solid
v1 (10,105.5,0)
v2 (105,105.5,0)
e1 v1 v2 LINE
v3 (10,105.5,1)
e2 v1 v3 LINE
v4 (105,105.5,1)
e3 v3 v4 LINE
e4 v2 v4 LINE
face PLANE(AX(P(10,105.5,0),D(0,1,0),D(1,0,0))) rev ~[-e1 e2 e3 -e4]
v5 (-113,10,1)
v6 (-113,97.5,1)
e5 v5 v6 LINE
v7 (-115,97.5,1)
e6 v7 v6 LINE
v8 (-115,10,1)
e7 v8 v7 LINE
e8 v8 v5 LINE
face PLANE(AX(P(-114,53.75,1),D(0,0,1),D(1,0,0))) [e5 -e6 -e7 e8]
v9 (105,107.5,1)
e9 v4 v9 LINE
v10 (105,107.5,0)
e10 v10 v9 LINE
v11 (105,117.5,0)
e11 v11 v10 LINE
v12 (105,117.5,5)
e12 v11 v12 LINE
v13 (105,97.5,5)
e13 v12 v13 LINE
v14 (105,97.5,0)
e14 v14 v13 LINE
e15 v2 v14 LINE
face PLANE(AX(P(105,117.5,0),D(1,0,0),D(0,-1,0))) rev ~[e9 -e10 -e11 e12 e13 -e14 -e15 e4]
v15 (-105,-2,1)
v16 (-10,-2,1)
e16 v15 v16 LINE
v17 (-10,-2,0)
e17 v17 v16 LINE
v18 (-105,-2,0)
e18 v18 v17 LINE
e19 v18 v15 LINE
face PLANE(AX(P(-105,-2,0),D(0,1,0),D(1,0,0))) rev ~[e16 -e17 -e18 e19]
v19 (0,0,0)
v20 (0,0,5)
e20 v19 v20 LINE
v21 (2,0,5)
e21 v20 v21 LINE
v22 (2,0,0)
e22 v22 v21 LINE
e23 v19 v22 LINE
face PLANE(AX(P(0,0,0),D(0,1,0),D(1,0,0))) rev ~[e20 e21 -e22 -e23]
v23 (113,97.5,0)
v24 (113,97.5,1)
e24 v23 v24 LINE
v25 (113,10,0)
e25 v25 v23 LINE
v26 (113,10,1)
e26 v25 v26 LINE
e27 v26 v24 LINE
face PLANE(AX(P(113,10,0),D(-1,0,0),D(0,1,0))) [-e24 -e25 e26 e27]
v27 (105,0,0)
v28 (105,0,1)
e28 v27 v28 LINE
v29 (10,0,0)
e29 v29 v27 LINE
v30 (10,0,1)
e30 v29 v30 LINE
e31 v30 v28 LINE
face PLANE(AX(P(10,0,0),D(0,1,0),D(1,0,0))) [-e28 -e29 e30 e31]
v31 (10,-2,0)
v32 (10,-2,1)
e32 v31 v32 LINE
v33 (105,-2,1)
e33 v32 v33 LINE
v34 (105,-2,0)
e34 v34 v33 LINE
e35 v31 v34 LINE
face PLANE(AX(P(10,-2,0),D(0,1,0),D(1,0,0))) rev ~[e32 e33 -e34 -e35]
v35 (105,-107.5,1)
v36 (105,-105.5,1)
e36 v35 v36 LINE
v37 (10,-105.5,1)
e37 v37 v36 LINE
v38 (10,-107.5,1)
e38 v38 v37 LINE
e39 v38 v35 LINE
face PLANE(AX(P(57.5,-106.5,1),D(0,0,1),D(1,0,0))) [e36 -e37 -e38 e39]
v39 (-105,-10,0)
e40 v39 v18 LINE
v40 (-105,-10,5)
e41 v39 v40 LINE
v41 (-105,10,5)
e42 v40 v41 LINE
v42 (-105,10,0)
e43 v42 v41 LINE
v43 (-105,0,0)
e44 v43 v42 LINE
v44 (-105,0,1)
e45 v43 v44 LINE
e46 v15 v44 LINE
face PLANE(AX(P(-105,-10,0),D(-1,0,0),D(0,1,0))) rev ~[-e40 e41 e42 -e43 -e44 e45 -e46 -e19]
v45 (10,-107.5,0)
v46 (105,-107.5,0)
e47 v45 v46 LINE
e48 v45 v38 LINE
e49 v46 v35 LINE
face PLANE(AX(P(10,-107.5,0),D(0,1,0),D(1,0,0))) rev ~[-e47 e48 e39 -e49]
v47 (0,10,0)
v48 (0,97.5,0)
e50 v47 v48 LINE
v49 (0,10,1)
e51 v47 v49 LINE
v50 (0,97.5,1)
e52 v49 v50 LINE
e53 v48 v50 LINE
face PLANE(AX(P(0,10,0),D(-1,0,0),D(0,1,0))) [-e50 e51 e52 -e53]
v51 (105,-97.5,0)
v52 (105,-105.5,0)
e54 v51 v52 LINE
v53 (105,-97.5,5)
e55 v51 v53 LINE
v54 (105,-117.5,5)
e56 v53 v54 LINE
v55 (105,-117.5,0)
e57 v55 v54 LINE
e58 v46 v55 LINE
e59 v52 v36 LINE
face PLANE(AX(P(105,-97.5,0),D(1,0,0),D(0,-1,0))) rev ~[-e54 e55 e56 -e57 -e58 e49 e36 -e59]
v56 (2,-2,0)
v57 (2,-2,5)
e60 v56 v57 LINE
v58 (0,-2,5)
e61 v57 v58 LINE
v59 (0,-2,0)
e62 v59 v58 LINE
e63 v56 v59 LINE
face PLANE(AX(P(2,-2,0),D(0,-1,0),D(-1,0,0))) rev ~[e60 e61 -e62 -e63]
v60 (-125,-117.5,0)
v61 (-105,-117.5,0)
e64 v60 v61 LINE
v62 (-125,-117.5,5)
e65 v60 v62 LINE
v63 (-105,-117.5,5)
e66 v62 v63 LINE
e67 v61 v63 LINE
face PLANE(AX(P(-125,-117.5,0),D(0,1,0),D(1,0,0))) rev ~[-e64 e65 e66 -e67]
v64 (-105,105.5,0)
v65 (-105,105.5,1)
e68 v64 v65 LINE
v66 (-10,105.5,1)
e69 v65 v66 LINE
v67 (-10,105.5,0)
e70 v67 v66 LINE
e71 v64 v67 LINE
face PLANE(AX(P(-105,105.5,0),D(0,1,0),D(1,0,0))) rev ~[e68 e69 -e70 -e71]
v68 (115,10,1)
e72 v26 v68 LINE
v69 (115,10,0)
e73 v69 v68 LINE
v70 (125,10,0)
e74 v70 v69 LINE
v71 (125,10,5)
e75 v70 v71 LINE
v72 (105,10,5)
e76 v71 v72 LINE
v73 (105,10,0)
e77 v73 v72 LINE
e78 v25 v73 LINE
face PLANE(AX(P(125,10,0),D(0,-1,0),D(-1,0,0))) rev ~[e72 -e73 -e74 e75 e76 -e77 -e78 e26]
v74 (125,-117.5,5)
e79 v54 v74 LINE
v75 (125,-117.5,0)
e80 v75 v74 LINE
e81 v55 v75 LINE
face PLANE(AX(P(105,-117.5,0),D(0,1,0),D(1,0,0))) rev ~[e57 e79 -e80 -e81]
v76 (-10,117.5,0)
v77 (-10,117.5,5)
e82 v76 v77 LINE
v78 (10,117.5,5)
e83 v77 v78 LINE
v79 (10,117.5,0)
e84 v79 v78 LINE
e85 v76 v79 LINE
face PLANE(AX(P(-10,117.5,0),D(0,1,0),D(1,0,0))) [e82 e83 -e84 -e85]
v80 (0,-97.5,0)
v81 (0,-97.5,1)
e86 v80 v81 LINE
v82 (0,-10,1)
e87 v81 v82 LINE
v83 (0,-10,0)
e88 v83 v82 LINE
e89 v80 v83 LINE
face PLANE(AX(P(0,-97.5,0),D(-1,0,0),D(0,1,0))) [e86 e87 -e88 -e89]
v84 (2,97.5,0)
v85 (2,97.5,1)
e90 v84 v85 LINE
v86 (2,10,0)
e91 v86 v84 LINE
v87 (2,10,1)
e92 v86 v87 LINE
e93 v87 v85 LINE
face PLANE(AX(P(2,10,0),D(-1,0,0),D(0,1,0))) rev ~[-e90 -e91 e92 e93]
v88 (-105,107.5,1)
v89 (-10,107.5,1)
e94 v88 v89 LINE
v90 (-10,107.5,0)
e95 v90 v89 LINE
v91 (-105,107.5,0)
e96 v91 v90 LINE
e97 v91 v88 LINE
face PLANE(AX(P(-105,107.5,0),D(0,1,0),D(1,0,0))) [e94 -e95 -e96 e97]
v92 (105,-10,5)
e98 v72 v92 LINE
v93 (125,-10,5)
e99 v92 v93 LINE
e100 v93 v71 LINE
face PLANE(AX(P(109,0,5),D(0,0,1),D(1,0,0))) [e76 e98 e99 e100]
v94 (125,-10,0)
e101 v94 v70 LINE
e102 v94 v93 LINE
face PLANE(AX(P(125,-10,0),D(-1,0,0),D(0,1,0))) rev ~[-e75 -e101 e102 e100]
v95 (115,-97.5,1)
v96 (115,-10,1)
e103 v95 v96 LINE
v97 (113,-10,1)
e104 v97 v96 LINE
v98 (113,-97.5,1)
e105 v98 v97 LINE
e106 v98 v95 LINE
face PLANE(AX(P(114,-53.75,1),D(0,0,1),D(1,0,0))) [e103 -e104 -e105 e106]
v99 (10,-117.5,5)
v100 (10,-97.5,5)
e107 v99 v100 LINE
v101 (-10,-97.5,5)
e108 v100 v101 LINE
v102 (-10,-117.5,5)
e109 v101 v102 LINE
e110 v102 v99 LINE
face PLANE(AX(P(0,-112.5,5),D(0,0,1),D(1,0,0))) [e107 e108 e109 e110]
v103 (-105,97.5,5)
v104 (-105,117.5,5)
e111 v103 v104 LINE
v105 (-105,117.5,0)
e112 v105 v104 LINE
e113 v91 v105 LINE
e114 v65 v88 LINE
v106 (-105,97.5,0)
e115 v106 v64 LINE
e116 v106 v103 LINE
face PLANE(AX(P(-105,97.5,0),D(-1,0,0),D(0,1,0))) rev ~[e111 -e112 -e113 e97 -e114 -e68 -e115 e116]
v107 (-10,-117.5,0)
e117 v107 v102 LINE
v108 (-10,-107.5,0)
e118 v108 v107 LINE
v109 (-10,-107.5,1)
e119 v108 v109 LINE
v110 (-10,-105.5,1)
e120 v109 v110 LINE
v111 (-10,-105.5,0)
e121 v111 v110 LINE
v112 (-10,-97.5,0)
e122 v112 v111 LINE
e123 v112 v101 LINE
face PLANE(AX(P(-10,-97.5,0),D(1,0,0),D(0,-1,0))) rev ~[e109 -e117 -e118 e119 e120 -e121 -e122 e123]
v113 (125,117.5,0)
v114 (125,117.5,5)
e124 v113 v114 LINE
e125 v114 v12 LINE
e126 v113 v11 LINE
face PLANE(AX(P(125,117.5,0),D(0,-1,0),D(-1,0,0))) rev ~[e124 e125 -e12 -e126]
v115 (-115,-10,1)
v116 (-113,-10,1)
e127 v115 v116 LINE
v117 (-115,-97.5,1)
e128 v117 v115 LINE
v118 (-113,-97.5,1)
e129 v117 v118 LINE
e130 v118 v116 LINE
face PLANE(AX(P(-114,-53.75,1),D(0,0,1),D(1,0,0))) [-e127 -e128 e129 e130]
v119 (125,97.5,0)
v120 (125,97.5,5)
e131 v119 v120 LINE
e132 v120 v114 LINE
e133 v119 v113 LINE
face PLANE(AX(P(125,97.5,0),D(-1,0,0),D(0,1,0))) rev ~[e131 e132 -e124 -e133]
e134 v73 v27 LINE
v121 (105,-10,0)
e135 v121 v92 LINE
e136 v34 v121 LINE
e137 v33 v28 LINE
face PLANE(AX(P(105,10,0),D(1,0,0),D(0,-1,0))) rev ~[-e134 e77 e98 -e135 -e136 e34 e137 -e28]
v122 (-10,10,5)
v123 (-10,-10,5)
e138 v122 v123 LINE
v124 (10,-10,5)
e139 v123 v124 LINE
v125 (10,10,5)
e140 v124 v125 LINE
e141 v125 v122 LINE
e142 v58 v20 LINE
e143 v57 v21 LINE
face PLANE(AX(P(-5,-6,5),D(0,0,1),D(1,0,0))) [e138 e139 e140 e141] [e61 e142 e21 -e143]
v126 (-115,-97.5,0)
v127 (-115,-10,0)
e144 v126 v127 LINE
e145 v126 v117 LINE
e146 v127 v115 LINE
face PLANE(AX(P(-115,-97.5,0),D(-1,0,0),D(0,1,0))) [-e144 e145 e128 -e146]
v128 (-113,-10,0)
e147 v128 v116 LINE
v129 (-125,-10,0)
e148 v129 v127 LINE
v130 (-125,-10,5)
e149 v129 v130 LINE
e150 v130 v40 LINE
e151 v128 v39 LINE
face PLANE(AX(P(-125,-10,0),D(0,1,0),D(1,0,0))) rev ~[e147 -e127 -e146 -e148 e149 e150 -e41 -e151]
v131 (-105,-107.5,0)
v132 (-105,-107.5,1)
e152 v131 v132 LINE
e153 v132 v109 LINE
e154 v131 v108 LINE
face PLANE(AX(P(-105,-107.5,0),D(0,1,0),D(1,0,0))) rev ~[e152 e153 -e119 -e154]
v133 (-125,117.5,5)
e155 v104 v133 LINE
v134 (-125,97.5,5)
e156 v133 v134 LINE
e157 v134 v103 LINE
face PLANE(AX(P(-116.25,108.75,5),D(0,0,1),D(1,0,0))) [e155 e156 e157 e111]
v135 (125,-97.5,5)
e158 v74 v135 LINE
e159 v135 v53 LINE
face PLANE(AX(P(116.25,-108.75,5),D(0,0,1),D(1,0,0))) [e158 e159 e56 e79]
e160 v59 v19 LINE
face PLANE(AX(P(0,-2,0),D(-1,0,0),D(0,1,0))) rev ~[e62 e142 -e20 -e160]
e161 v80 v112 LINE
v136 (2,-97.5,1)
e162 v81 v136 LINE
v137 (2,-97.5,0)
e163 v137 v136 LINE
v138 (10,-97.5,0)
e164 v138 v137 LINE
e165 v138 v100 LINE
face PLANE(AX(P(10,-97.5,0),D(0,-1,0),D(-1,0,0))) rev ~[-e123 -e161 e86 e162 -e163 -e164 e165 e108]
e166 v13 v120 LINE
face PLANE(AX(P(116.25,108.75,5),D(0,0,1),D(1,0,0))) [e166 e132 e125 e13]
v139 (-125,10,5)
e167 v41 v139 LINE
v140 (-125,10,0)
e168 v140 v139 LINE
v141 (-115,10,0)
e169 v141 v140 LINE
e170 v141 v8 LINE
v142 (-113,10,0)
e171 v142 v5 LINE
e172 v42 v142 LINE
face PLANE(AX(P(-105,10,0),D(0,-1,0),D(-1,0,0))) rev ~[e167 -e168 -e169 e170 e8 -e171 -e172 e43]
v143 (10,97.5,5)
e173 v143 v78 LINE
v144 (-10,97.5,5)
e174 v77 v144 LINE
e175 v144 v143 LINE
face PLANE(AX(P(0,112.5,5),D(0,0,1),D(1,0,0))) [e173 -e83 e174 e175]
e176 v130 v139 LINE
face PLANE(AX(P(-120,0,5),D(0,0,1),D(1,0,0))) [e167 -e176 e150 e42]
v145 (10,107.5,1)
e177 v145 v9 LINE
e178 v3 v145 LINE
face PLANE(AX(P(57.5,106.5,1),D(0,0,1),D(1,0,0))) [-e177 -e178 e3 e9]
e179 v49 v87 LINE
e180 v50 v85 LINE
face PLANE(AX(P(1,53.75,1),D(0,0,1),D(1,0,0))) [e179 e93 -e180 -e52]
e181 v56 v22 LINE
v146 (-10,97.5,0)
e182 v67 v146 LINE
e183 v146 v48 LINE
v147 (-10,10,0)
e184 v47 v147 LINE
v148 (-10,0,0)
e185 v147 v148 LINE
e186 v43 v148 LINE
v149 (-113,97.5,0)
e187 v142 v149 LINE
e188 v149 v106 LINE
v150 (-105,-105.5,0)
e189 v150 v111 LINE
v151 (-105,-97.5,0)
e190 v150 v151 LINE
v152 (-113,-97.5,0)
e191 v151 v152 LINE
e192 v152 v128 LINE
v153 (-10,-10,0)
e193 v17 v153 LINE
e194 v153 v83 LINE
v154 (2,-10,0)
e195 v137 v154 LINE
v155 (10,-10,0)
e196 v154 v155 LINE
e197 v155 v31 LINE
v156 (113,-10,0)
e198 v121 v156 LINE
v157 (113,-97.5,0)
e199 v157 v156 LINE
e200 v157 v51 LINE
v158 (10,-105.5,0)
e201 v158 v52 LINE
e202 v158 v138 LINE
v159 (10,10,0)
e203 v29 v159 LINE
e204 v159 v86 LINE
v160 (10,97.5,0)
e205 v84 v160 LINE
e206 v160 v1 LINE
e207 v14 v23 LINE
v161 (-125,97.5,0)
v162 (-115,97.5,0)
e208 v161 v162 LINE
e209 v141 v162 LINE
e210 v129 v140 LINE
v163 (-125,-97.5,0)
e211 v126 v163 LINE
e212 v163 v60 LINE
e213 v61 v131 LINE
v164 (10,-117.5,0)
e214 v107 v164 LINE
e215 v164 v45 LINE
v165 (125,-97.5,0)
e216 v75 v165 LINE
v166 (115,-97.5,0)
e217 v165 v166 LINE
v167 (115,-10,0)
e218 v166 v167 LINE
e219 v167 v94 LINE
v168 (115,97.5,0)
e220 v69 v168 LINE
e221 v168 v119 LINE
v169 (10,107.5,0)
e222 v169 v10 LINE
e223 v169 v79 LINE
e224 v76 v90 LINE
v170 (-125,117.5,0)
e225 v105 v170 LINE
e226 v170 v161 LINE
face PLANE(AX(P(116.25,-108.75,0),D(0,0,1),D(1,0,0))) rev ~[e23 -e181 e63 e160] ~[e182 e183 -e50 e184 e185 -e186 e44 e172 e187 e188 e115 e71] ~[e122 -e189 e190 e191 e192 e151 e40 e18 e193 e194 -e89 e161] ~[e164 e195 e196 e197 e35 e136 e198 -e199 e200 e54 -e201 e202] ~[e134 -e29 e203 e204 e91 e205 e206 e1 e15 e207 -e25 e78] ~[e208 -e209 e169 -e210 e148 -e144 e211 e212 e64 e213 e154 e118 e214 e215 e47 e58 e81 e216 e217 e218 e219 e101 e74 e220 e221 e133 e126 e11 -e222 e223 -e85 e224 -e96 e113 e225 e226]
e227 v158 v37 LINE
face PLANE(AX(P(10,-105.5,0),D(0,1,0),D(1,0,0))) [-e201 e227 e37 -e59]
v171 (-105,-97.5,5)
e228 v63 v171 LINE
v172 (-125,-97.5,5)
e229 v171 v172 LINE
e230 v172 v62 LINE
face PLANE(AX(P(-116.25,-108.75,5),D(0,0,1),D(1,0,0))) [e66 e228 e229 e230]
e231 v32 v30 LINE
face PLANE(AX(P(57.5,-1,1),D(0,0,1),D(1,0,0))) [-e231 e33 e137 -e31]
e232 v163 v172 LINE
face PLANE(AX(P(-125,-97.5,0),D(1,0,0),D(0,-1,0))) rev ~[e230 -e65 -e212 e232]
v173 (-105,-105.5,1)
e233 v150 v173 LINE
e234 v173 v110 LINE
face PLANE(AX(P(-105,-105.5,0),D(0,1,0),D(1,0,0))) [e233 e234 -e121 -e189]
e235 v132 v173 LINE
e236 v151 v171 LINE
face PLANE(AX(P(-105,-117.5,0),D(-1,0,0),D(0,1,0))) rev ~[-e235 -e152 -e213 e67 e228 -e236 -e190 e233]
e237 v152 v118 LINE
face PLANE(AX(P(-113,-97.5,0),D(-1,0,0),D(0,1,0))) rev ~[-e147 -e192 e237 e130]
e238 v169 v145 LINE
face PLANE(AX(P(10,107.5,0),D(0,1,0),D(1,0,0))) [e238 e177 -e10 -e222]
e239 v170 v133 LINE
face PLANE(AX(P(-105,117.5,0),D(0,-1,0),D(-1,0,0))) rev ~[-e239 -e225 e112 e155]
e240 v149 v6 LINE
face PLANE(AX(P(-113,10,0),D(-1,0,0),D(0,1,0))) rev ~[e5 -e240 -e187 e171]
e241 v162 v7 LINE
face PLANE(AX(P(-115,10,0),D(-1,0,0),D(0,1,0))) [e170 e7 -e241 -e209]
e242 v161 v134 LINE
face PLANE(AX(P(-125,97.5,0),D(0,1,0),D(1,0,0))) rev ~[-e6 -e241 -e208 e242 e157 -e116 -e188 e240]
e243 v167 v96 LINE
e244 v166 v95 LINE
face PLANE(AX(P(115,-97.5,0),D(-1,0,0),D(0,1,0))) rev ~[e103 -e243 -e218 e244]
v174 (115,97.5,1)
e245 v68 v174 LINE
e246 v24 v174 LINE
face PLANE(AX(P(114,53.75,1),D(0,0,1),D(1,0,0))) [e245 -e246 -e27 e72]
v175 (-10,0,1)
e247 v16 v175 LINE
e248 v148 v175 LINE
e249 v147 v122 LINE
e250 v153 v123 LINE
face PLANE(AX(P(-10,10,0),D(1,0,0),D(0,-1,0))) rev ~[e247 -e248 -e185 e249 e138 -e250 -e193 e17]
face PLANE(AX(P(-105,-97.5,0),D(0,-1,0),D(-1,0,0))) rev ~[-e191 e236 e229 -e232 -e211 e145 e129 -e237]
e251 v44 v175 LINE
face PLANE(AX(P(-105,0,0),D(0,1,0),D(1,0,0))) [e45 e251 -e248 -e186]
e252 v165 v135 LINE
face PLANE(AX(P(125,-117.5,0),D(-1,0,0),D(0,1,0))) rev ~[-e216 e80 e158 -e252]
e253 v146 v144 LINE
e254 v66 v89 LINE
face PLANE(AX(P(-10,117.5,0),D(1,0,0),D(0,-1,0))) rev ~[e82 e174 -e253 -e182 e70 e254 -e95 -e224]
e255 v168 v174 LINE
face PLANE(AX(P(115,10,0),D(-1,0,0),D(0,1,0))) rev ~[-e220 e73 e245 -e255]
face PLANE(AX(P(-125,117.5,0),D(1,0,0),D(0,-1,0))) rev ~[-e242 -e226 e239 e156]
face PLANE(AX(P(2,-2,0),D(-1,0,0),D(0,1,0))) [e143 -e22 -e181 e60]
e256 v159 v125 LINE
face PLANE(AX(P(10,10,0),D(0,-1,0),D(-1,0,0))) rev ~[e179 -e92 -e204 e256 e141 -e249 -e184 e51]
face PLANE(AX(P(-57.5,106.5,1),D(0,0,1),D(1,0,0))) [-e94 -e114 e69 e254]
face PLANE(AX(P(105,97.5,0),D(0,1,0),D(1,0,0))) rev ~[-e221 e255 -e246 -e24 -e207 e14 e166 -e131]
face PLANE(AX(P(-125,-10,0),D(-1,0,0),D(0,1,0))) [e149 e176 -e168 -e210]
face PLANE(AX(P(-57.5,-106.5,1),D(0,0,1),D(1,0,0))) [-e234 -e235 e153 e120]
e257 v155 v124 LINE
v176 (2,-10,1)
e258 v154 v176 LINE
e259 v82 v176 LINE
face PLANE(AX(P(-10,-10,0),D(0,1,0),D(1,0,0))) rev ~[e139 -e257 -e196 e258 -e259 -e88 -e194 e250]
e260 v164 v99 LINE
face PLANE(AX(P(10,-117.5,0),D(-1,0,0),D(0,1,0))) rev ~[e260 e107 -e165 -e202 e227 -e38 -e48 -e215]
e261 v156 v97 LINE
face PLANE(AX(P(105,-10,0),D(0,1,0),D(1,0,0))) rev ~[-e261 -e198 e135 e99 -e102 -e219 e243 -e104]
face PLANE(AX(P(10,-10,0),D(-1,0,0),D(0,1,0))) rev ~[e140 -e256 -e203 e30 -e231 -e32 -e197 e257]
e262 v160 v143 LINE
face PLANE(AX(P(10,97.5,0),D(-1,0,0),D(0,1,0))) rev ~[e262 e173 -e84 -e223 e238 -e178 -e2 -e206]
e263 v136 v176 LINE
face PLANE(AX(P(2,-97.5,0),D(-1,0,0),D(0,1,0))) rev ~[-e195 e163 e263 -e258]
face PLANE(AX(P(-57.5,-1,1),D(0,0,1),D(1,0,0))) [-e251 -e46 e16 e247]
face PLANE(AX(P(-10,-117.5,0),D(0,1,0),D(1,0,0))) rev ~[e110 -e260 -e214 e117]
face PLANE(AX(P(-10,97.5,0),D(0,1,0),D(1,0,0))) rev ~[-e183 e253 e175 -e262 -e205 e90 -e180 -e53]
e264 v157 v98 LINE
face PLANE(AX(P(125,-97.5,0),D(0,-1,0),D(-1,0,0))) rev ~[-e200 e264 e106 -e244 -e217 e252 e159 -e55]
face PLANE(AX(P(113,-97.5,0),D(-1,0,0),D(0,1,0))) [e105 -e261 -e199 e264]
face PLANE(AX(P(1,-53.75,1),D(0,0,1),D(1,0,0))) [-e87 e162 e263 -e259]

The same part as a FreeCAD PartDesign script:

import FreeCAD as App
import Part
import Sketcher
from FreeCAD import Vector
Q = App.Units.Quantity

doc = App.newDocument("Part")
body = doc.addObject("PartDesign::Body", "Body")

# Sketch on XY plane
sketch1 = body.newObject("Sketcher::SketchObject", "Sketch")
sketch1.AttachmentSupport = (doc.getObject("XY_Plane"), [""])
sketch1.MapMode = "FlatFace"
sketch1.addGeometry(Part.LineSegment(Vector(-105, 118, 0), Vector(-125, 118, 0)), False)
sketch1.addGeometry(Part.LineSegment(Vector(-125, 118, 0), Vector(-125, 98, 0)), False)
sketch1.addGeometry(Part.LineSegment(Vector(-125, 98, 0), Vector(-105, 98, 0)), False)
sketch1.addGeometry(Part.LineSegment(Vector(-105, 98, 0), Vector(-105, 118, 0)), False)
sketch1.addConstraint(Sketcher.Constraint("Coincident", 0, 2, 1, 1))
sketch1.addConstraint(Sketcher.Constraint("Coincident", 1, 2, 2, 1))
sketch1.addConstraint(Sketcher.Constraint("Coincident", 2, 2, 3, 1))
sketch1.addConstraint(Sketcher.Constraint("Coincident", 3, 2, 0, 1))
sketch1.addConstraint(Sketcher.Constraint("Horizontal", 0))
sketch1.addConstraint(Sketcher.Constraint("Vertical", 1))
sketch1.addConstraint(Sketcher.Constraint("Horizontal", 2))
sketch1.addConstraint(Sketcher.Constraint("Vertical", 3))
sketch1.addConstraint(Sketcher.Constraint("Equal", 2, 1))
sketch1.addConstraint(Sketcher.Constraint("DistanceX", 0, 2, 0, 1, Q("20 mm")))
sketch1.addConstraint(Sketcher.Constraint("DistanceX", 0, 2, -1, 1, Q("125 mm")))
sketch1.addConstraint(Sketcher.Constraint("DistanceY", -1, 1, 0, 2, Q("117.5 mm")))
pad1 = body.newObject("PartDesign::Pad", "Pad")
pad1.Profile = sketch1
pad1.Length = 5
body2 = doc.addObject("PartDesign::Body", "Body001")

# Sketch on XY plane
sketch2 = body2.newObject("Sketcher::SketchObject", "Sketch001")
sketch2.AttachmentSupport = (doc.getObject("XY_Plane001"), [""])
sketch2.MapMode = "FlatFace"
sketch2.addGeometry(Part.LineSegment(Vector(-10, 118, 0), Vector(-10, 98, 0)), False)
sketch2.addGeometry(Part.LineSegment(Vector(-10, 98, 0), Vector(10, 98, 0)), False)
sketch2.addGeometry(Part.LineSegment(Vector(10, 98, 0), Vector(10, 118, 0)), False)
sketch2.addGeometry(Part.LineSegment(Vector(10, 118, 0), Vector(-10, 118, 0)), False)
sketch2.addConstraint(Sketcher.Constraint("Coincident", 0, 2, 1, 1))
sketch2.addConstraint(Sketcher.Constraint("Coincident", 1, 2, 2, 1))
sketch2.addConstraint(Sketcher.Constraint("Coincident", 2, 2, 3, 1))
sketch2.addConstraint(Sketcher.Constraint("Coincident", 3, 2, 0, 1))
sketch2.addConstraint(Sketcher.Constraint("Vertical", 0))
sketch2.addConstraint(Sketcher.Constraint("Horizontal", 1))
sketch2.addConstraint(Sketcher.Constraint("Vertical", 2))
sketch2.addConstraint(Sketcher.Constraint("Horizontal", 3))
sketch2.addConstraint(Sketcher.Constraint("Equal", 3, 0))
sketch2.addConstraint(Sketcher.Constraint("DistanceX", 1, 1, 1, 2, Q("20 mm")))
sketch2.addConstraint(Sketcher.Constraint("DistanceX", 0, 2, -1, 1, Q("10 mm")))
sketch2.addConstraint(Sketcher.Constraint("DistanceY", -1, 1, 0, 2, Q("97.5 mm")))
pad2 = body2.newObject("PartDesign::Pad", "Pad001")
pad2.Profile = sketch2
pad2.Length = 5
body3 = doc.addObject("PartDesign::Body", "Body002")

# Sketch on XY plane
sketch3 = body3.newObject("Sketcher::SketchObject", "Sketch002")
sketch3.AttachmentSupport = (doc.getObject("XY_Plane002"), [""])
sketch3.MapMode = "FlatFace"
sketch3.addGeometry(Part.LineSegment(Vector(105, 118, 0), Vector(105, 98, 0)), False)
sketch3.addGeometry(Part.LineSegment(Vector(105, 98, 0), Vector(125, 98, 0)), False)
sketch3.addGeometry(Part.LineSegment(Vector(125, 98, 0), Vector(125, 118, 0)), False)
sketch3.addGeometry(Part.LineSegment(Vector(125, 118, 0), Vector(105, 118, 0)), False)
sketch3.addConstraint(Sketcher.Constraint("Coincident", 0, 2, 1, 1))
sketch3.addConstraint(Sketcher.Constraint("Coincident", 1, 2, 2, 1))
sketch3.addConstraint(Sketcher.Constraint("Coincident", 2, 2, 3, 1))
sketch3.addConstraint(Sketcher.Constraint("Coincident", 3, 2, 0, 1))
sketch3.addConstraint(Sketcher.Constraint("Vertical", 0))
sketch3.addConstraint(Sketcher.Constraint("Horizontal", 1))
sketch3.addConstraint(Sketcher.Constraint("Vertical", 2))
sketch3.addConstraint(Sketcher.Constraint("Horizontal", 3))
sketch3.addConstraint(Sketcher.Constraint("Equal", 3, 0))
sketch3.addConstraint(Sketcher.Constraint("DistanceX", 1, 1, 1, 2, Q("20 mm")))
sketch3.addConstraint(Sketcher.Constraint("DistanceX", -1, 1, 0, 2, Q("105 mm")))
sketch3.addConstraint(Sketcher.Constraint("DistanceY", -1, 1, 0, 2, Q("97.5 mm")))
pad3 = body3.newObject("PartDesign::Pad", "Pad002")
pad3.Profile = sketch3
pad3.Length = 5
body4 = doc.addObject("PartDesign::Body", "Body003")

# Sketch on XY plane
sketch4 = body4.newObject("Sketcher::SketchObject", "Sketch003")
sketch4.AttachmentSupport = (doc.getObject("XY_Plane003"), [""])
sketch4.MapMode = "FlatFace"
sketch4.addGeometry(Part.LineSegment(Vector(-125, 10, 0), Vector(-125, -10, 0)), False)
sketch4.addGeometry(Part.LineSegment(Vector(-125, -10, 0), Vector(-105, -10, 0)), False)
sketch4.addGeometry(Part.LineSegment(Vector(-105, -10, 0), Vector(-105, 10, 0)), False)
sketch4.addGeometry(Part.LineSegment(Vector(-105, 10, 0), Vector(-125, 10, 0)), False)
sketch4.addConstraint(Sketcher.Constraint("Coincident", 0, 2, 1, 1))
sketch4.addConstraint(Sketcher.Constraint("Coincident", 1, 2, 2, 1))
sketch4.addConstraint(Sketcher.Constraint("Coincident", 2, 2, 3, 1))
sketch4.addConstraint(Sketcher.Constraint("Coincident", 3, 2, 0, 1))
sketch4.addConstraint(Sketcher.Constraint("Vertical", 0))
sketch4.addConstraint(Sketcher.Constraint("Horizontal", 1))
sketch4.addConstraint(Sketcher.Constraint("Vertical", 2))
sketch4.addConstraint(Sketcher.Constraint("Horizontal", 3))
sketch4.addConstraint(Sketcher.Constraint("Equal", 3, 0))
sketch4.addConstraint(Sketcher.Constraint("DistanceX", 1, 1, 1, 2, Q("20 mm")))
sketch4.addConstraint(Sketcher.Constraint("DistanceX", 0, 2, -1, 1, Q("125 mm")))
sketch4.addConstraint(Sketcher.Constraint("DistanceY", 0, 2, -1, 1, Q("10 mm")))
pad4 = body4.newObject("PartDesign::Pad", "Pad003")
pad4.Profile = sketch4
pad4.Length = 5
body5 = doc.addObject("PartDesign::Body", "Body004")

# Sketch on XY plane
sketch5 = body5.newObject("Sketcher::SketchObject", "Sketch004")
sketch5.AttachmentSupport = (doc.getObject("XY_Plane004"), [""])
sketch5.MapMode = "FlatFace"
sketch5.addGeometry(Part.LineSegment(Vector(-10, -10, 0), Vector(10, -10, 0)), False)
sketch5.addGeometry(Part.LineSegment(Vector(10, -10, 0), Vector(10, 10, 0)), False)
sketch5.addGeometry(Part.LineSegment(Vector(10, 10, 0), Vector(-10, 10, 0)), False)
sketch5.addGeometry(Part.LineSegment(Vector(-10, 10, 0), Vector(-10, -10, 0)), False)
sketch5.addGeometry(Part.LineSegment(Vector(2, -2, 0), Vector(0, -2, 0)), False)
sketch5.addGeometry(Part.LineSegment(Vector(0, -2, 0), Vector(0, 0, 0)), False)
sketch5.addGeometry(Part.LineSegment(Vector(0, 0, 0), Vector(2, 0, 0)), False)
sketch5.addGeometry(Part.LineSegment(Vector(2, 0, 0), Vector(2, -2, 0)), False)
sketch5.addConstraint(Sketcher.Constraint("Coincident", 0, 2, 1, 1))
sketch5.addConstraint(Sketcher.Constraint("Coincident", 1, 2, 2, 1))
sketch5.addConstraint(Sketcher.Constraint("Coincident", 2, 2, 3, 1))
sketch5.addConstraint(Sketcher.Constraint("Coincident", 3, 2, 0, 1))
sketch5.addConstraint(Sketcher.Constraint("Coincident", 4, 2, 5, 1))
sketch5.addConstraint(Sketcher.Constraint("Coincident", 5, 2, 6, 1))
sketch5.addConstraint(Sketcher.Constraint("Coincident", 6, 2, 7, 1))
sketch5.addConstraint(Sketcher.Constraint("Coincident", 7, 2, 4, 1))
sketch5.addConstraint(Sketcher.Constraint("Horizontal", 0))
sketch5.addConstraint(Sketcher.Constraint("Vertical", 1))
sketch5.addConstraint(Sketcher.Constraint("Horizontal", 2))
sketch5.addConstraint(Sketcher.Constraint("Vertical", 3))
sketch5.addConstraint(Sketcher.Constraint("Horizontal", 4))
sketch5.addConstraint(Sketcher.Constraint("Vertical", 5))
sketch5.addConstraint(Sketcher.Constraint("Horizontal", 6))
sketch5.addConstraint(Sketcher.Constraint("Vertical", 7))
sketch5.addConstraint(Sketcher.Constraint("Coincident", 5, 2, -1, 1))
sketch5.addConstraint(Sketcher.Constraint("Symmetric", 0, 2, 2, 2, -1, 1))
sketch5.addConstraint(Sketcher.Constraint("Equal", 2, 1))
sketch5.addConstraint(Sketcher.Constraint("Equal", 6, 5))
sketch5.addConstraint(Sketcher.Constraint("DistanceX", 0, 1, 0, 2, Q("20 mm")))
sketch5.addConstraint(Sketcher.Constraint("DistanceX", 4, 2, 4, 1, Q("2 mm")))
pad5 = body5.newObject("PartDesign::Pad", "Pad004")
pad5.Profile = sketch5
pad5.Length = 5
body6 = doc.addObject("PartDesign::Body", "Body005")

# Sketch on XY plane
sketch6 = body6.newObject("Sketcher::SketchObject", "Sketch005")
sketch6.AttachmentSupport = (doc.getObject("XY_Plane005"), [""])
sketch6.MapMode = "FlatFace"
sketch6.addGeometry(Part.LineSegment(Vector(105, 10, 0), Vector(105, -10, 0)), False)
sketch6.addGeometry(Part.LineSegment(Vector(105, -10, 0), Vector(125, -10, 0)), False)
sketch6.addGeometry(Part.LineSegment(Vector(125, -10, 0), Vector(125, 10, 0)), False)
sketch6.addGeometry(Part.LineSegment(Vector(125, 10, 0), Vector(105, 10, 0)), False)
sketch6.addConstraint(Sketcher.Constraint("Coincident", 0, 2, 1, 1))
sketch6.addConstraint(Sketcher.Constraint("Coincident", 1, 2, 2, 1))
sketch6.addConstraint(Sketcher.Constraint("Coincident", 2, 2, 3, 1))
sketch6.addConstraint(Sketcher.Constraint("Coincident", 3, 2, 0, 1))
sketch6.addConstraint(Sketcher.Constraint("Vertical", 0))
sketch6.addConstraint(Sketcher.Constraint("Horizontal", 1))
sketch6.addConstraint(Sketcher.Constraint("Vertical", 2))
sketch6.addConstraint(Sketcher.Constraint("Horizontal", 3))
sketch6.addConstraint(Sketcher.Constraint("Equal", 3, 0))
sketch6.addConstraint(Sketcher.Constraint("DistanceX", 1, 1, 1, 2, Q("20 mm")))
sketch6.addConstraint(Sketcher.Constraint("DistanceX", -1, 1, 0, 2, Q("105 mm")))
sketch6.addConstraint(Sketcher.Constraint("DistanceY", 0, 2, -1, 1, Q("10 mm")))
pad6 = body6.newObject("PartDesign::Pad", "Pad005")
pad6.Profile = sketch6
pad6.Length = 5
body7 = doc.addObject("PartDesign::Body", "Body006")

# Sketch on XY plane
sketch7 = body7.newObject("Sketcher::SketchObject", "Sketch006")
sketch7.AttachmentSupport = (doc.getObject("XY_Plane006"), [""])
sketch7.MapMode = "FlatFace"
sketch7.addGeometry(Part.LineSegment(Vector(-125, -98, 0), Vector(-125, -118, 0)), False)
sketch7.addGeometry(Part.LineSegment(Vector(-125, -118, 0), Vector(-105, -118, 0)), False)
sketch7.addGeometry(Part.LineSegment(Vector(-105, -118, 0), Vector(-105, -98, 0)), False)
sketch7.addGeometry(Part.LineSegment(Vector(-105, -98, 0), Vector(-125, -98, 0)), False)
sketch7.addConstraint(Sketcher.Constraint("Coincident", 0, 2, 1, 1))
sketch7.addConstraint(Sketcher.Constraint("Coincident", 1, 2, 2, 1))
sketch7.addConstraint(Sketcher.Constraint("Coincident", 2, 2, 3, 1))
sketch7.addConstraint(Sketcher.Constraint("Coincident", 3, 2, 0, 1))
sketch7.addConstraint(Sketcher.Constraint("Vertical", 0))
sketch7.addConstraint(Sketcher.Constraint("Horizontal", 1))
sketch7.addConstraint(Sketcher.Constraint("Vertical", 2))
sketch7.addConstraint(Sketcher.Constraint("Horizontal", 3))
sketch7.addConstraint(Sketcher.Constraint("Equal", 3, 0))
sketch7.addConstraint(Sketcher.Constraint("DistanceX", 1, 1, 1, 2, Q("20 mm")))
sketch7.addConstraint(Sketcher.Constraint("DistanceX", 0, 2, -1, 1, Q("125 mm")))
sketch7.addConstraint(Sketcher.Constraint("DistanceY", 0, 2, -1, 1, Q("117.5 mm")))
pad7 = body7.newObject("PartDesign::Pad", "Pad006")
pad7.Profile = sketch7
pad7.Length = 5
body8 = doc.addObject("PartDesign::Body", "Body007")

# Sketch on XY plane
sketch8 = body8.newObject("Sketcher::SketchObject", "Sketch007")
sketch8.AttachmentSupport = (doc.getObject("XY_Plane007"), [""])
sketch8.MapMode = "FlatFace"
sketch8.addGeometry(Part.LineSegment(Vector(-10, -118, 0), Vector(10, -118, 0)), False)
sketch8.addGeometry(Part.LineSegment(Vector(10, -118, 0), Vector(10, -98, 0)), False)
sketch8.addGeometry(Part.LineSegment(Vector(10, -98, 0), Vector(-10, -98, 0)), False)
sketch8.addGeometry(Part.LineSegment(Vector(-10, -98, 0), Vector(-10, -118, 0)), False)
sketch8.addConstraint(Sketcher.Constraint("Coincident", 0, 2, 1, 1))
sketch8.addConstraint(Sketcher.Constraint("Coincident", 1, 2, 2, 1))
sketch8.addConstraint(Sketcher.Constraint("Coincident", 2, 2, 3, 1))
sketch8.addConstraint(Sketcher.Constraint("Coincident", 3, 2, 0, 1))
sketch8.addConstraint(Sketcher.Constraint("Horizontal", 0))
sketch8.addConstraint(Sketcher.Constraint("Vertical", 1))
sketch8.addConstraint(Sketcher.Constraint("Horizontal", 2))
sketch8.addConstraint(Sketcher.Constraint("Vertical", 3))
sketch8.addConstraint(Sketcher.Constraint("Equal", 2, 1))
sketch8.addConstraint(Sketcher.Constraint("DistanceX", 0, 1, 0, 2, Q("20 mm")))
sketch8.addConstraint(Sketcher.Constraint("DistanceX", -1, 1, 0, 2, Q("10 mm")))
sketch8.addConstraint(Sketcher.Constraint("DistanceY", 0, 2, -1, 1, Q("117.5 mm")))
pad8 = body8.newObject("PartDesign::Pad", "Pad007")
pad8.Profile = sketch8
pad8.Length = 5
body9 = doc.addObject("PartDesign::Body", "Body008")

# Sketch on XY plane
sketch9 = body9.newObject("Sketcher::SketchObject", "Sketch008")
sketch9.AttachmentSupport = (doc.getObject("XY_Plane008"), [""])
sketch9.MapMode = "FlatFace"
sketch9.addGeometry(Part.LineSegment(Vector(125, -98, 0), Vector(105, -98, 0)), False)
sketch9.addGeometry(Part.LineSegment(Vector(105, -98, 0), Vector(105, -118, 0)), False)
sketch9.addGeometry(Part.LineSegment(Vector(105, -118, 0), Vector(125, -118, 0)), False)
sketch9.addGeometry(Part.LineSegment(Vector(125, -118, 0), Vector(125, -98, 0)), False)
sketch9.addConstraint(Sketcher.Constraint("Coincident", 0, 2, 1, 1))
sketch9.addConstraint(Sketcher.Constraint("Coincident", 1, 2, 2, 1))
sketch9.addConstraint(Sketcher.Constraint("Coincident", 2, 2, 3, 1))
sketch9.addConstraint(Sketcher.Constraint("Coincident", 3, 2, 0, 1))
sketch9.addConstraint(Sketcher.Constraint("Horizontal", 0))
sketch9.addConstraint(Sketcher.Constraint("Vertical", 1))
sketch9.addConstraint(Sketcher.Constraint("Horizontal", 2))
sketch9.addConstraint(Sketcher.Constraint("Vertical", 3))
sketch9.addConstraint(Sketcher.Constraint("Equal", 2, 1))
sketch9.addConstraint(Sketcher.Constraint("DistanceX", 0, 2, 0, 1, Q("20 mm")))
sketch9.addConstraint(Sketcher.Constraint("DistanceX", -1, 1, 0, 2, Q("105 mm")))
sketch9.addConstraint(Sketcher.Constraint("DistanceY", 0, 2, -1, 1, Q("97.5 mm")))
pad9 = body9.newObject("PartDesign::Pad", "Pad008")
pad9.Profile = sketch9
pad9.Length = 5
body.AllowCompound = True
doc.recompute()

boolean = body.newObject("PartDesign::Boolean", "Boolean")
boolean.Type = "Fuse"
boolean.addObjects([body2])
doc.recompute()

boolean2 = body.newObject("PartDesign::Boolean", "Boolean001")
boolean2.Type = "Fuse"
boolean2.addObjects([body3])
doc.recompute()

boolean3 = body.newObject("PartDesign::Boolean", "Boolean002")
boolean3.Type = "Fuse"
boolean3.addObjects([body4])
doc.recompute()

boolean4 = body.newObject("PartDesign::Boolean", "Boolean003")
boolean4.Type = "Fuse"
boolean4.addObjects([body5])
doc.recompute()

boolean5 = body.newObject("PartDesign::Boolean", "Boolean004")
boolean5.Type = "Fuse"
boolean5.addObjects([body6])
doc.recompute()

boolean6 = body.newObject("PartDesign::Boolean", "Boolean005")
boolean6.Type = "Fuse"
boolean6.addObjects([body7])
doc.recompute()

boolean7 = body.newObject("PartDesign::Boolean", "Boolean006")
boolean7.Type = "Fuse"
boolean7.addObjects([body8])
doc.recompute()

boolean8 = body.newObject("PartDesign::Boolean", "Boolean007")
boolean8.Type = "Fuse"
boolean8.addObjects([body9])

# Sketch on XY plane
sketch10 = body.newObject("Sketcher::SketchObject", "Sketch009")
sketch10.AttachmentSupport = (doc.getObject("XY_Plane"), [""])
sketch10.MapMode = "FlatFace"
sketch10.addGeometry(Part.LineSegment(Vector(-105, 107.5, 0), Vector(-105, 105.5, 0)), False)
sketch10.addGeometry(Part.LineSegment(Vector(-105, 105.5, 0), Vector(-10, 105.5, 0)), False)
sketch10.addGeometry(Part.LineSegment(Vector(-10, 105.5, 0), Vector(-10, 107.5, 0)), False)
sketch10.addGeometry(Part.LineSegment(Vector(-10, 107.5, 0), Vector(-105, 107.5, 0)), False)
sketch10.addGeometry(Part.LineSegment(Vector(10, 107.5, 0), Vector(10, 105.5, 0)), False)
sketch10.addGeometry(Part.LineSegment(Vector(10, 105.5, 0), Vector(105, 105.5, 0)), False)
sketch10.addGeometry(Part.LineSegment(Vector(105, 105.5, 0), Vector(105, 107.5, 0)), False)
sketch10.addGeometry(Part.LineSegment(Vector(105, 107.5, 0), Vector(10, 107.5, 0)), False)
sketch10.addGeometry(Part.LineSegment(Vector(113, 97.5, 0), Vector(113, 10, 0)), False)
sketch10.addGeometry(Part.LineSegment(Vector(113, 10, 0), Vector(115, 10, 0)), False)
sketch10.addGeometry(Part.LineSegment(Vector(115, 10, 0), Vector(115, 97.5, 0)), False)
sketch10.addGeometry(Part.LineSegment(Vector(115, 97.5, 0), Vector(113, 97.5, 0)), False)
sketch10.addGeometry(Part.LineSegment(Vector(113, -10, 0), Vector(113, -97.5, 0)), False)
sketch10.addGeometry(Part.LineSegment(Vector(113, -97.5, 0), Vector(115, -97.5, 0)), False)
sketch10.addGeometry(Part.LineSegment(Vector(115, -97.5, 0), Vector(115, -10, 0)), False)
sketch10.addGeometry(Part.LineSegment(Vector(115, -10, 0), Vector(113, -10, 0)), False)
sketch10.addGeometry(Part.LineSegment(Vector(10, -105.5, 0), Vector(10, -107.5, 0)), False)
sketch10.addGeometry(Part.LineSegment(Vector(10, -107.5, 0), Vector(105, -107.5, 0)), False)
sketch10.addGeometry(Part.LineSegment(Vector(105, -107.5, 0), Vector(105, -105.5, 0)), False)
sketch10.addGeometry(Part.LineSegment(Vector(105, -105.5, 0), Vector(10, -105.5, 0)), False)
sketch10.addGeometry(Part.LineSegment(Vector(-105, -105.5, 0), Vector(-105, -107.5, 0)), False)
sketch10.addGeometry(Part.LineSegment(Vector(-105, -107.5, 0), Vector(-10, -107.5, 0)), False)
sketch10.addGeometry(Part.LineSegment(Vector(-10, -107.5, 0), Vector(-10, -105.5, 0)), False)
sketch10.addGeometry(Part.LineSegment(Vector(-10, -105.5, 0), Vector(-105, -105.5, 0)), False)
sketch10.addGeometry(Part.LineSegment(Vector(-115, -10, 0), Vector(-115, -97.5, 0)), False)
sketch10.addGeometry(Part.LineSegment(Vector(-115, -97.5, 0), Vector(-113, -97.5, 0)), False)
sketch10.addGeometry(Part.LineSegment(Vector(-113, -97.5, 0), Vector(-113, -10, 0)), False)
sketch10.addGeometry(Part.LineSegment(Vector(-113, -10, 0), Vector(-115, -10, 0)), False)
sketch10.addGeometry(Part.LineSegment(Vector(-115, 97.5, 0), Vector(-115, 10, 0)), False)
sketch10.addGeometry(Part.LineSegment(Vector(-115, 10, 0), Vector(-113, 10, 0)), False)
sketch10.addGeometry(Part.LineSegment(Vector(-113, 10, 0), Vector(-113, 97.5, 0)), False)
sketch10.addGeometry(Part.LineSegment(Vector(-113, 97.5, 0), Vector(-115, 97.5, 0)), False)
sketch10.addGeometry(Part.LineSegment(Vector(0, 97.5, 0), Vector(0, 10, 0)), False)
sketch10.addGeometry(Part.LineSegment(Vector(0, 10, 0), Vector(2, 10, 0)), False)
sketch10.addGeometry(Part.LineSegment(Vector(2, 10, 0), Vector(2, 97.5, 0)), False)
sketch10.addGeometry(Part.LineSegment(Vector(2, 97.5, 0), Vector(0, 97.5, 0)), False)
sketch10.addGeometry(Part.LineSegment(Vector(0, -10, 0), Vector(0, -97.5, 0)), False)
sketch10.addGeometry(Part.LineSegment(Vector(0, -97.5, 0), Vector(2, -97.5, 0)), False)
sketch10.addGeometry(Part.LineSegment(Vector(2, -97.5, 0), Vector(2, -10, 0)), False)
sketch10.addGeometry(Part.LineSegment(Vector(2, -10, 0), Vector(0, -10, 0)), False)
sketch10.addGeometry(Part.LineSegment(Vector(-105, 0, 0), Vector(-105, -2, 0)), False)
sketch10.addGeometry(Part.LineSegment(Vector(-105, -2, 0), Vector(-10, -2, 0)), False)
sketch10.addGeometry(Part.LineSegment(Vector(-10, -2, 0), Vector(-10, 0, 0)), False)
sketch10.addGeometry(Part.LineSegment(Vector(-10, 0, 0), Vector(-105, 0, 0)), False)
sketch10.addGeometry(Part.LineSegment(Vector(10, 0, 0), Vector(10, -2, 0)), False)
sketch10.addGeometry(Part.LineSegment(Vector(10, -2, 0), Vector(105, -2, 0)), False)
sketch10.addGeometry(Part.LineSegment(Vector(105, -2, 0), Vector(105, 0, 0)), False)
sketch10.addGeometry(Part.LineSegment(Vector(105, 0, 0), Vector(10, 0, 0)), False)
sketch10.addConstraint(Sketcher.Constraint("Coincident", 0, 2, 1, 1))
sketch10.addConstraint(Sketcher.Constraint("Coincident", 1, 2, 2, 1))
sketch10.addConstraint(Sketcher.Constraint("Coincident", 2, 2, 3, 1))
sketch10.addConstraint(Sketcher.Constraint("Coincident", 3, 2, 0, 1))
sketch10.addConstraint(Sketcher.Constraint("Coincident", 4, 2, 5, 1))
sketch10.addConstraint(Sketcher.Constraint("Coincident", 5, 2, 6, 1))
sketch10.addConstraint(Sketcher.Constraint("Coincident", 6, 2, 7, 1))
sketch10.addConstraint(Sketcher.Constraint("Coincident", 7, 2, 4, 1))
sketch10.addConstraint(Sketcher.Constraint("Coincident", 8, 2, 9, 1))
sketch10.addConstraint(Sketcher.Constraint("Coincident", 9, 2, 10, 1))
sketch10.addConstraint(Sketcher.Constraint("Coincident", 10, 2, 11, 1))
sketch10.addConstraint(Sketcher.Constraint("Coincident", 11, 2, 8, 1))
sketch10.addConstraint(Sketcher.Constraint("Coincident", 12, 2, 13, 1))
sketch10.addConstraint(Sketcher.Constraint("Coincident", 13, 2, 14, 1))
sketch10.addConstraint(Sketcher.Constraint("Coincident", 14, 2, 15, 1))
sketch10.addConstraint(Sketcher.Constraint("Coincident", 15, 2, 12, 1))
sketch10.addConstraint(Sketcher.Constraint("Coincident", 16, 2, 17, 1))
sketch10.addConstraint(Sketcher.Constraint("Coincident", 17, 2, 18, 1))
sketch10.addConstraint(Sketcher.Constraint("Coincident", 18, 2, 19, 1))
sketch10.addConstraint(Sketcher.Constraint("Coincident", 19, 2, 16, 1))
sketch10.addConstraint(Sketcher.Constraint("Coincident", 20, 2, 21, 1))
sketch10.addConstraint(Sketcher.Constraint("Coincident", 21, 2, 22, 1))
sketch10.addConstraint(Sketcher.Constraint("Coincident", 22, 2, 23, 1))
sketch10.addConstraint(Sketcher.Constraint("Coincident", 23, 2, 20, 1))
sketch10.addConstraint(Sketcher.Constraint("Coincident", 24, 2, 25, 1))
sketch10.addConstraint(Sketcher.Constraint("Coincident", 25, 2, 26, 1))
sketch10.addConstraint(Sketcher.Constraint("Coincident", 26, 2, 27, 1))
sketch10.addConstraint(Sketcher.Constraint("Coincident", 27, 2, 24, 1))
sketch10.addConstraint(Sketcher.Constraint("Coincident", 28, 2, 29, 1))
sketch10.addConstraint(Sketcher.Constraint("Coincident", 29, 2, 30, 1))
sketch10.addConstraint(Sketcher.Constraint("Coincident", 30, 2, 31, 1))
sketch10.addConstraint(Sketcher.Constraint("Coincident", 31, 2, 28, 1))
sketch10.addConstraint(Sketcher.Constraint("Coincident", 32, 2, 33, 1))
sketch10.addConstraint(Sketcher.Constraint("Coincident", 33, 2, 34, 1))
sketch10.addConstraint(Sketcher.Constraint("Coincident", 34, 2, 35, 1))
sketch10.addConstraint(Sketcher.Constraint("Coincident", 35, 2, 32, 1))
sketch10.addConstraint(Sketcher.Constraint("Coincident", 36, 2, 37, 1))
sketch10.addConstraint(Sketcher.Constraint("Coincident", 37, 2, 38, 1))
sketch10.addConstraint(Sketcher.Constraint("Coincident", 38, 2, 39, 1))
sketch10.addConstraint(Sketcher.Constraint("Coincident", 39, 2, 36, 1))
sketch10.addConstraint(Sketcher.Constraint("Coincident", 40, 2, 41, 1))
sketch10.addConstraint(Sketcher.Constraint("Coincident", 41, 2, 42, 1))
sketch10.addConstraint(Sketcher.Constraint("Coincident", 42, 2, 43, 1))
sketch10.addConstraint(Sketcher.Constraint("Coincident", 43, 2, 40, 1))
sketch10.addConstraint(Sketcher.Constraint("Coincident", 44, 2, 45, 1))
sketch10.addConstraint(Sketcher.Constraint("Coincident", 45, 2, 46, 1))
sketch10.addConstraint(Sketcher.Constraint("Coincident", 46, 2, 47, 1))
sketch10.addConstraint(Sketcher.Constraint("Coincident", 47, 2, 44, 1))
sketch10.addConstraint(Sketcher.Constraint("Vertical", 0))
sketch10.addConstraint(Sketcher.Constraint("Horizontal", 1))
sketch10.addConstraint(Sketcher.Constraint("Vertical", 2))
sketch10.addConstraint(Sketcher.Constraint("Horizontal", 3))
sketch10.addConstraint(Sketcher.Constraint("Vertical", 4))
sketch10.addConstraint(Sketcher.Constraint("Horizontal", 5))
sketch10.addConstraint(Sketcher.Constraint("Vertical", 6))
sketch10.addConstraint(Sketcher.Constraint("Horizontal", 7))
sketch10.addConstraint(Sketcher.Constraint("Vertical", 8))
sketch10.addConstraint(Sketcher.Constraint("Horizontal", 9))
sketch10.addConstraint(Sketcher.Constraint("Vertical", 10))
sketch10.addConstraint(Sketcher.Constraint("Horizontal", 11))
sketch10.addConstraint(Sketcher.Constraint("Vertical", 12))
sketch10.addConstraint(Sketcher.Constraint("Horizontal", 13))
sketch10.addConstraint(Sketcher.Constraint("Vertical", 14))
sketch10.addConstraint(Sketcher.Constraint("Horizontal", 15))
sketch10.addConstraint(Sketcher.Constraint("Vertical", 16))
sketch10.addConstraint(Sketcher.Constraint("Horizontal", 17))
sketch10.addConstraint(Sketcher.Constraint("Vertical", 18))
sketch10.addConstraint(Sketcher.Constraint("Horizontal", 19))
sketch10.addConstraint(Sketcher.Constraint("Vertical", 20))
sketch10.addConstraint(Sketcher.Constraint("Horizontal", 21))
sketch10.addConstraint(Sketcher.Constraint("Vertical", 22))
sketch10.addConstraint(Sketcher.Constraint("Horizontal", 23))
sketch10.addConstraint(Sketcher.Constraint("Vertical", 24))
sketch10.addConstraint(Sketcher.Constraint("Horizontal", 25))
sketch10.addConstraint(Sketcher.Constraint("Vertical", 26))
sketch10.addConstraint(Sketcher.Constraint("Horizontal", 27))
sketch10.addConstraint(Sketcher.Constraint("Vertical", 28))
sketch10.addConstraint(Sketcher.Constraint("Horizontal", 29))
sketch10.addConstraint(Sketcher.Constraint("Vertical", 30))
sketch10.addConstraint(Sketcher.Constraint("Horizontal", 31))
sketch10.addConstraint(Sketcher.Constraint("Vertical", 32))
sketch10.addConstraint(Sketcher.Constraint("Horizontal", 33))
sketch10.addConstraint(Sketcher.Constraint("Vertical", 34))
sketch10.addConstraint(Sketcher.Constraint("Horizontal", 35))
sketch10.addConstraint(Sketcher.Constraint("Vertical", 36))
sketch10.addConstraint(Sketcher.Constraint("Horizontal", 37))
sketch10.addConstraint(Sketcher.Constraint("Vertical", 38))
sketch10.addConstraint(Sketcher.Constraint("Horizontal", 39))
sketch10.addConstraint(Sketcher.Constraint("Vertical", 40))
sketch10.addConstraint(Sketcher.Constraint("Horizontal", 41))
sketch10.addConstraint(Sketcher.Constraint("Vertical", 42))
sketch10.addConstraint(Sketcher.Constraint("Horizontal", 43))
sketch10.addConstraint(Sketcher.Constraint("Vertical", 44))
sketch10.addConstraint(Sketcher.Constraint("Horizontal", 45))
sketch10.addConstraint(Sketcher.Constraint("Vertical", 46))
sketch10.addConstraint(Sketcher.Constraint("Horizontal", 47))
sketch10.addConstraint(Sketcher.Constraint("Symmetric", 2, 2, 16, 2, -1, 1))
sketch10.addConstraint(Sketcher.Constraint("Symmetric", 0, 2, 18, 2, -1, 1))
sketch10.addConstraint(Sketcher.Constraint("Symmetric", 6, 2, 20, 2, -1, 1))
sketch10.addConstraint(Sketcher.Constraint("Symmetric", 4, 2, 22, 2, -1, 1))
sketch10.addConstraint(Sketcher.Constraint("Symmetric", 10, 2, 24, 2, -1, 1))
sketch10.addConstraint(Sketcher.Constraint("Symmetric", 8, 2, 26, 2, -1, 1))
sketch10.addConstraint(Sketcher.Constraint("Symmetric", 14, 2, 28, 2, -1, 1))
sketch10.addConstraint(Sketcher.Constraint("Symmetric", 12, 2, 30, 2, -1, 1))
sketch10.addConstraint(Sketcher.Constraint("Symmetric", 35, 2, 36, 2, -1, 1))
sketch10.addConstraint(Sketcher.Constraint("Symmetric", 43, 2, 46, 2, -1, 1))
sketch10.addConstraint(Sketcher.Constraint("Symmetric", 1, 2, 4, 2, -2))
sketch10.addConstraint(Sketcher.Constraint("Symmetric", 3, 2, 6, 2, -2))
sketch10.addConstraint(Sketcher.Constraint("Symmetric", 13, 2, 24, 2, -2))
sketch10.addConstraint(Sketcher.Constraint("Symmetric", 15, 2, 26, 2, -2))
sketch10.addConstraint(Sketcher.Constraint("Symmetric", 41, 2, 44, 2, -2))
sketch10.addConstraint(Sketcher.Constraint("Symmetric", 33, 2, 38, 2, -1))
sketch10.addConstraint(Sketcher.Constraint("PointOnObject", 32, 2, -2))
sketch10.addConstraint(Sketcher.Constraint("PointOnObject", 42, 2, -1))
sketch10.addConstraint(Sketcher.Constraint("Horizontal", 29, 2, 32, 2))
sketch10.addConstraint(Sketcher.Constraint("Horizontal", 31, 2, 34, 2))
sketch10.addConstraint(Sketcher.Constraint("Vertical", 23, 2, 40, 2))
sketch10.addConstraint(Sketcher.Constraint("Vertical", 22, 2, 41, 2))
sketch10.addConstraint(Sketcher.Constraint("Equal", 31, 33))
sketch10.addConstraint(Sketcher.Constraint("Equal", 39, 0))
sketch10.addConstraint(Sketcher.Constraint("Equal", 22, 40))
sketch10.addConstraint(Sketcher.Constraint("DistanceX", 1, 1, 1, 2, Q("95 mm")))
sketch10.addConstraint(Sketcher.Constraint("DistanceX", 9, 1, 9, 2, Q("2 mm")))
sketch10.addConstraint(Sketcher.Constraint("DistanceY", 8, 2, 8, 1, Q("87.5 mm")))
sketch10.addConstraint(Sketcher.Constraint("DistanceX", 0, 2, -1, 1, Q("105 mm")))
sketch10.addConstraint(Sketcher.Constraint("DistanceX", -1, 1, 8, 2, Q("113 mm")))
sketch10.addConstraint(Sketcher.Constraint("DistanceY", -1, 1, 8, 2, Q("10 mm")))
sketch10.addConstraint(Sketcher.Constraint("DistanceY", 10, 2, 5, 2, Q("8 mm")))
pad10 = body.newObject("PartDesign::Pad", "Pad009")
pad10.Profile = sketch10
pad10.Length = 1

doc.recompute()
